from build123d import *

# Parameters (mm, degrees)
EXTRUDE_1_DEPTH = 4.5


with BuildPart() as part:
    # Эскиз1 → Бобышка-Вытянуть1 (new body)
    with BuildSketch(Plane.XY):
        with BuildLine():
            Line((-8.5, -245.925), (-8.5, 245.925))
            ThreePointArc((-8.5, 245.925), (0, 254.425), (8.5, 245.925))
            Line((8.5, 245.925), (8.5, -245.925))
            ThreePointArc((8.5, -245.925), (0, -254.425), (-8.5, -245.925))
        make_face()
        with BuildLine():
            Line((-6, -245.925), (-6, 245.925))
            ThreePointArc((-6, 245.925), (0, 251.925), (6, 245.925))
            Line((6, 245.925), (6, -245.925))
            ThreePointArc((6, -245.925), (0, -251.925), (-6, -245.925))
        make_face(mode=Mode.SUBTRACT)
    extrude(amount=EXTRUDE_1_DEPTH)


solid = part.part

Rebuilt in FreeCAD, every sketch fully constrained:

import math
import FreeCAD as App
import Part
import Sketcher

V = App.Vector
Q = App.Units.Quantity

doc = App.newDocument("Part")
params = doc.addObject("Spreadsheet::Sheet", "Params")
for row, (alias, value) in enumerate([
    ("sketch1_radius", "6 mm"),
    ("sketch1_radius2", "8.5 mm"),
    ("sketch1_height", "491.85 mm"),
    ("pad1_length", "4.5 mm"),
], start=1):
    params.set(f"A{row}", alias)
    params.set(f"B{row}", "=" + value)
    params.setAlias(f"B{row}", alias)

body = doc.addObject("PartDesign::Body", "Body")

sketch1 = body.newObject("Sketcher::SketchObject", "Sketch")
sketch1.AttachmentSupport = (doc.getObject("XY_Plane"), [""])
sketch1.MapMode = "FlatFace"
sketch1.addGeometry([
    Part.LineSegment(V(-8, 246, 0), V(-8, -246, 0)),
    Part.ArcOfCircle(Part.Circle(V(0, -246, 0), V(0, 0, 1), 8), math.radians(180), math.radians(360)),
    Part.LineSegment(V(8, -246, 0), V(8, 246, 0)),
    Part.ArcOfCircle(Part.Circle(V(0, 246, 0), V(0, 0, 1), 8), math.radians(0), math.radians(180)),
    Part.LineSegment(V(-6, -246, 0), V(-6, 246, 0)),
    Part.ArcOfCircle(Part.Circle(V(0, 246, 0), V(0, 0, 1), 6), math.radians(0), math.radians(180)),
    Part.LineSegment(V(6, 246, 0), V(6, -246, 0)),
    Part.ArcOfCircle(Part.Circle(V(0, -246, 0), V(0, 0, 1), 6), math.radians(180), math.radians(360)),
], False)
sketch1.addConstraint([
    Sketcher.Constraint("Tangent", 0, 2, 1, 1),
    Sketcher.Constraint("Tangent", 1, 2, 2, 1),
    Sketcher.Constraint("Tangent", 2, 2, 3, 1),
    Sketcher.Constraint("Tangent", 3, 2, 0, 1),
    Sketcher.Constraint("Tangent", 4, 2, 5, 2),
    Sketcher.Constraint("Tangent", 5, 1, 6, 1),
    Sketcher.Constraint("Tangent", 6, 2, 7, 2),
    Sketcher.Constraint("Tangent", 7, 1, 4, 1),
    Sketcher.Constraint("Vertical", 0),
    Sketcher.Constraint("Vertical", 2),
    Sketcher.Constraint("Vertical", 4),
    Sketcher.Constraint("Vertical", 6),
    Sketcher.Constraint("Coincident", 5, 3, 3, 3),
    Sketcher.Constraint("Symmetric", 1, 3, 3, 3, -1, 1),
    Sketcher.Constraint("Horizontal", 7, 3, 0, 2),
    Sketcher.Constraint("Radius", 5, Q("6 mm")),
    Sketcher.Constraint("Radius", 1, Q("8.5 mm")),
    Sketcher.Constraint("DistanceY", 0, 2, 0, 1, Q("491.85 mm")),
])
sketch1.setExpression("Constraints[15]", "Params.sketch1_radius")
sketch1.setExpression("Constraints[16]", "Params.sketch1_radius2")
sketch1.setExpression("Constraints[17]", "Params.sketch1_height")
pad1 = body.newObject("PartDesign::Pad", "Pad")
pad1.Profile = sketch1
pad1.setExpression("Length", "Params.pad1_length")

doc.recompute()
